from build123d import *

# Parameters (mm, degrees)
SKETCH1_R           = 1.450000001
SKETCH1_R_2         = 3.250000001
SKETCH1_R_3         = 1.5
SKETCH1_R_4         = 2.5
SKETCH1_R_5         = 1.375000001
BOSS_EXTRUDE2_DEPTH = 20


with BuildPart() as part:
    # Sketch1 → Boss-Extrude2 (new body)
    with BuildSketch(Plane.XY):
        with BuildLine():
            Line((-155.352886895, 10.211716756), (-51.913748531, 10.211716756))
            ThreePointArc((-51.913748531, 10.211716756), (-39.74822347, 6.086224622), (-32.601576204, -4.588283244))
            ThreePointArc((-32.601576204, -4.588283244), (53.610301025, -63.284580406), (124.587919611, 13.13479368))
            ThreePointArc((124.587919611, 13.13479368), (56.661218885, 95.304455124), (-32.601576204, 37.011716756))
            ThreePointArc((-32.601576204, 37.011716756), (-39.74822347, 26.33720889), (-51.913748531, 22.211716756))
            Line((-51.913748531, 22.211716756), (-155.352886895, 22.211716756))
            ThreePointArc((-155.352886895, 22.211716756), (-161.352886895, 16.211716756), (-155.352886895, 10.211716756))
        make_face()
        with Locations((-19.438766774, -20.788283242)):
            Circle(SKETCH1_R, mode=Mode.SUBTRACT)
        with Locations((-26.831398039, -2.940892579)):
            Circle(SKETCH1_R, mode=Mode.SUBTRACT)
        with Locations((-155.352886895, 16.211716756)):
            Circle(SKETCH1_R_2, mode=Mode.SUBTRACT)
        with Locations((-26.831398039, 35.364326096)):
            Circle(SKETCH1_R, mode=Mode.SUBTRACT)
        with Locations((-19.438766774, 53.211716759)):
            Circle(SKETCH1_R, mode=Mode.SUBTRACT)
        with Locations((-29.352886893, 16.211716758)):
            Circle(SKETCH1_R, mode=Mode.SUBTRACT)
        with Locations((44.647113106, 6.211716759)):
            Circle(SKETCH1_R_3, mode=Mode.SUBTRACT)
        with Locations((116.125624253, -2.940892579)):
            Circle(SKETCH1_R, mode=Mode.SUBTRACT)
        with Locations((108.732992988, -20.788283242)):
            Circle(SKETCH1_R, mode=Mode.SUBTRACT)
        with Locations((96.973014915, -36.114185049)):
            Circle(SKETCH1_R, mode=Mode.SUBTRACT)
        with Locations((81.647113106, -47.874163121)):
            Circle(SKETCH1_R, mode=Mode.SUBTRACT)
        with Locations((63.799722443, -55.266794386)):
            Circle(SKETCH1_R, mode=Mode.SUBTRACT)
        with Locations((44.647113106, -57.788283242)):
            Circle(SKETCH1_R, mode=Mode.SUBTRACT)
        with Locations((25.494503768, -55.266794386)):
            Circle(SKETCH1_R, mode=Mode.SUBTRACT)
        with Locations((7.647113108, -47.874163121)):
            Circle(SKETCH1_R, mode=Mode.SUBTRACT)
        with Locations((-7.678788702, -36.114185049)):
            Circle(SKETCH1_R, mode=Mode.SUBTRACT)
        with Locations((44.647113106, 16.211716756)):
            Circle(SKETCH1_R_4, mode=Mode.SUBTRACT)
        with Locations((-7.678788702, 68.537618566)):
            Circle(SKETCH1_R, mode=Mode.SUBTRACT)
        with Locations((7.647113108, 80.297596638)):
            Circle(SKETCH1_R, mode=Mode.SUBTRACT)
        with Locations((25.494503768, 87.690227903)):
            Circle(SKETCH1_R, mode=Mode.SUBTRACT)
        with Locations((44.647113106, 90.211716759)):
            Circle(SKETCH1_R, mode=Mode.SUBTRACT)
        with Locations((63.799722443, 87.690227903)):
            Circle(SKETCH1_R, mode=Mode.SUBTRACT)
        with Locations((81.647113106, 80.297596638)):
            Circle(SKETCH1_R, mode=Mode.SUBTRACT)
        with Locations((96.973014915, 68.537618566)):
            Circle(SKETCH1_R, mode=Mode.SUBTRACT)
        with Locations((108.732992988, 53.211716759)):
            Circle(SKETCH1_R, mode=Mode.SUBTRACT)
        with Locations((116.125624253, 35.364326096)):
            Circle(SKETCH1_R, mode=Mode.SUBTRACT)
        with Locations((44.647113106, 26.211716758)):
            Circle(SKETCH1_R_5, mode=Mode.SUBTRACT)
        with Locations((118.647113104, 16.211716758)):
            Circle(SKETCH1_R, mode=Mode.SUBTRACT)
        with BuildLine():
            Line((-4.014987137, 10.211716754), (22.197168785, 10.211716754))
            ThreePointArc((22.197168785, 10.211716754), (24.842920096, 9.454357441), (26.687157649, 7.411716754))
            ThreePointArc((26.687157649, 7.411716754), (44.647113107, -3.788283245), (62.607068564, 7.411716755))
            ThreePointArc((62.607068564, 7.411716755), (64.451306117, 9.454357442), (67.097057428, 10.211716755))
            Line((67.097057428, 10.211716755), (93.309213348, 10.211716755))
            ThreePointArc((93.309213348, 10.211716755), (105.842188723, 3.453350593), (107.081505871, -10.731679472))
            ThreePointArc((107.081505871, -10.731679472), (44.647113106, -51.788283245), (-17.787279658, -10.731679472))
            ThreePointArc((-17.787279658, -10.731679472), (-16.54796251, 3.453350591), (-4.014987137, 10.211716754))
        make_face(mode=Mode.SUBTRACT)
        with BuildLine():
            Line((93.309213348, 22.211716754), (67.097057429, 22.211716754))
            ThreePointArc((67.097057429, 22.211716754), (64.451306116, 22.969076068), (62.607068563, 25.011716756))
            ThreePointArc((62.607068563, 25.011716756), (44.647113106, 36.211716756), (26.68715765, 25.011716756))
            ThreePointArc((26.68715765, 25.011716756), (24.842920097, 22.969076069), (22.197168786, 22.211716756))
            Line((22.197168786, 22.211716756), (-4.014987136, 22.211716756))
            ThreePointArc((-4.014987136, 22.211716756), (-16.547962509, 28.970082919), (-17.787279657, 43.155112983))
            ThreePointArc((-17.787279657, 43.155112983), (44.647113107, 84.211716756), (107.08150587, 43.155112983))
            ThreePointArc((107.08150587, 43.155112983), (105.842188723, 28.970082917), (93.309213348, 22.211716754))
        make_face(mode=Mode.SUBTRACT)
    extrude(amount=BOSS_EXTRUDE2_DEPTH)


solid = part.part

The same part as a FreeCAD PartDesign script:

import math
import FreeCAD as App
import Part
import Sketcher

doc = App.newDocument("Part")
body = doc.addObject("PartDesign::Body", "Body")

# Sketch on XY plane
sketch1 = body.newObject("Sketcher::SketchObject", "Sketch")
sketch1.AttachmentSupport = (doc.getObject("XY_Plane"), [""])
sketch1.MapMode = "FlatFace"
sketch1.addGeometry([
    Part.LineSegment(App.Vector(-155.352887, 10.211717, 0), App.Vector(-51.913749, 10.211717, 0)),  # 0
    Part.ArcOfCircle(Part.Circle(App.Vector(-51.913749, -9.788283, 0), App.Vector(0, 0, 1), 20), math.radians(15.070062), math.radians(90)),  # 1
    Part.ArcOfCircle(Part.Circle(App.Vector(44.647113, 16.211717, 0), App.Vector(0, 0, 1), 80), math.radians(-164.929938), math.radians(-2.204228)),  # 2
    Part.ArcOfCircle(Part.Circle(App.Vector(44.647113, 16.211717, 0), App.Vector(0, 0, 1), 80), math.radians(-2.204228), math.radians(164.929938)),  # 3
    Part.ArcOfCircle(Part.Circle(App.Vector(-51.913749, 42.211717, 0), App.Vector(0, 0, 1), 20), math.radians(-90), math.radians(-15.070062)),  # 4
    Part.LineSegment(App.Vector(-51.913749, 22.211717, 0), App.Vector(-155.352887, 22.211717, 0)),  # 5
    Part.ArcOfCircle(Part.Circle(App.Vector(-155.352887, 16.211717, 0), App.Vector(0, 0, 1), 6), math.radians(90), math.radians(270)),  # 6
    Part.Circle(App.Vector(-155.352887, 16.211717, 0), App.Vector(0, 0, 1), 3.25),  # 7
    Part.Circle(App.Vector(-19.438767, -20.788283, 0), App.Vector(0, 0, 1), 1.45),  # 8
    Part.Circle(App.Vector(-26.831398, -2.940893, 0), App.Vector(0, 0, 1), 1.45),  # 9
    Part.Circle(App.Vector(-29.352887, 16.211717, 0), App.Vector(0, 0, 1), 1.45),  # 10
    Part.Circle(App.Vector(7.647113, -47.874163, 0), App.Vector(0, 0, 1), 1.45),  # 11
    Part.Circle(App.Vector(25.494504, -55.266794, 0), App.Vector(0, 0, 1), 1.45),  # 12
    Part.Circle(App.Vector(44.647113, -57.788283, 0), App.Vector(0, 0, 1), 1.45),  # 13
    Part.Circle(App.Vector(-7.678789, -36.114185, 0), App.Vector(0, 0, 1), 1.45),  # 14
    Part.Circle(App.Vector(63.799722, -55.266794, 0), App.Vector(0, 0, 1), 1.45),  # 15
    Part.Circle(App.Vector(81.647113, -47.874163, 0), App.Vector(0, 0, 1), 1.45),  # 16
    Part.Circle(App.Vector(96.973015, -36.114185, 0), App.Vector(0, 0, 1), 1.45),  # 17
    Part.ArcOfCircle(Part.Circle(App.Vector(-4.014987, -4.788283, 0), App.Vector(0, 0, 1), 15), math.radians(90), math.radians(203.342484)),  # 18
    Part.LineSegment(App.Vector(-4.014987, 10.211717, 0), App.Vector(22.197169, 10.211717, 0)),  # 19
    Part.ArcOfCircle(Part.Circle(App.Vector(22.197169, 5.211717, 0), App.Vector(0, 0, 1), 5), math.radians(26.103881), math.radians(90)),  # 20
    Part.ArcOfCircle(Part.Circle(App.Vector(44.647113, 16.211717, 0), App.Vector(0, 0, 1), 20), math.radians(-153.896119), math.radians(-26.103881)),  # 21
    Part.ArcOfCircle(Part.Circle(App.Vector(67.097057, 5.211717, 0), App.Vector(0, 0, 1), 5), math.radians(90), math.radians(153.896119)),  # 22
    Part.LineSegment(App.Vector(67.097057, 10.211717, 0), App.Vector(93.309213, 10.211717, 0)),  # 23
    Part.ArcOfCircle(Part.Circle(App.Vector(93.309213, -4.788283, 0), App.Vector(0, 0, 1), 15), math.radians(-23.342484), math.radians(90)),  # 24
    Part.ArcOfCircle(Part.Circle(App.Vector(44.647113, 16.211717, 0), App.Vector(0, 0, 1), 68), math.radians(-156.657516), math.radians(-23.342484)),  # 25
    Part.Circle(App.Vector(44.647113, 6.211717, 0), App.Vector(0, 0, 1), 1.5),  # 26
    Part.Circle(App.Vector(44.647113, 16.211717, 0), App.Vector(0, 0, 1), 2.5),  # 27
    Part.Circle(App.Vector(108.732993, -20.788283, 0), App.Vector(0, 0, 1), 1.45),  # 28
    Part.Circle(App.Vector(116.125624, -2.940893, 0), App.Vector(0, 0, 1), 1.45),  # 29
    Part.Circle(App.Vector(118.647113, 16.211717, 0), App.Vector(0, 0, 1), 1.45),  # 30
    Part.Circle(App.Vector(-26.831398, 35.364326, 0), App.Vector(0, 0, 1), 1.45),  # 31
    Part.Circle(App.Vector(-19.438767, 53.211717, 0), App.Vector(0, 0, 1), 1.45),  # 32
    Part.Circle(App.Vector(44.647113, 26.211717, 0), App.Vector(0, 0, 1), 1.375),  # 33
    Part.ArcOfCircle(Part.Circle(App.Vector(93.309213, 37.211717, 0), App.Vector(0, 0, 1), 15), math.radians(-90), math.radians(23.342484)),  # 34
    Part.LineSegment(App.Vector(93.309213, 22.211717, 0), App.Vector(67.097057, 22.211717, 0)),  # 35
    Part.ArcOfCircle(Part.Circle(App.Vector(67.097057, 27.211717, 0), App.Vector(0, 0, 1), 5), math.radians(-153.896119), math.radians(-90)),  # 36
    Part.ArcOfCircle(Part.Circle(App.Vector(44.647113, 16.211717, 0), App.Vector(0, 0, 1), 20), math.radians(26.103881), math.radians(153.896119)),  # 37
    Part.ArcOfCircle(Part.Circle(App.Vector(22.197169, 27.211717, 0), App.Vector(0, 0, 1), 5), math.radians(-90), math.radians(-26.103881)),  # 38
    Part.LineSegment(App.Vector(22.197169, 22.211717, 0), App.Vector(-4.014987, 22.211717, 0)),  # 39
    Part.ArcOfCircle(Part.Circle(App.Vector(-4.014987, 37.211717, 0), App.Vector(0, 0, 1), 15), math.radians(156.657516), math.radians(270)),  # 40
    Part.ArcOfCircle(Part.Circle(App.Vector(44.647113, 16.211717, 0), App.Vector(0, 0, 1), 68), math.radians(23.342484), math.radians(156.657516)),  # 41
    Part.Circle(App.Vector(116.125624, 35.364326, 0), App.Vector(0, 0, 1), 1.45),  # 42
    Part.Circle(App.Vector(108.732993, 53.211717, 0), App.Vector(0, 0, 1), 1.45),  # 43
    Part.Circle(App.Vector(-7.678789, 68.537619, 0), App.Vector(0, 0, 1), 1.45),  # 44
    Part.Circle(App.Vector(7.647113, 80.297597, 0), App.Vector(0, 0, 1), 1.45),  # 45
    Part.Circle(App.Vector(25.494504, 87.690228, 0), App.Vector(0, 0, 1), 1.45),  # 46
    Part.Circle(App.Vector(44.647113, 90.211717, 0), App.Vector(0, 0, 1), 1.45),  # 47
    Part.Circle(App.Vector(96.973015, 68.537619, 0), App.Vector(0, 0, 1), 1.45),  # 48
    Part.Circle(App.Vector(81.647113, 80.297597, 0), App.Vector(0, 0, 1), 1.45),  # 49
    Part.Circle(App.Vector(63.799722, 87.690228, 0), App.Vector(0, 0, 1), 1.45),  # 50
], False)
sketch1.addConstraint([
    Sketcher.Constraint("Tangent", 0, 2, 1, 2),
    Sketcher.Constraint("Tangent", 1, 1, 2, 1),
    Sketcher.Constraint("Tangent", 2, 2, 3, 1),
    Sketcher.Constraint("Tangent", 3, 2, 4, 2),
    Sketcher.Constraint("Tangent", 4, 1, 5, 1),
    Sketcher.Constraint("Tangent", 5, 2, 6, 1),
    Sketcher.Constraint("Tangent", 6, 2, 0, 1),
    Sketcher.Constraint("Tangent", 18, 1, 19, 1),
    Sketcher.Constraint("Tangent", 19, 2, 20, 2),
    Sketcher.Constraint("Tangent", 20, 1, 21, 1),
    Sketcher.Constraint("Tangent", 21, 2, 22, 2),
    Sketcher.Constraint("Tangent", 22, 1, 23, 1),
    Sketcher.Constraint("Tangent", 23, 2, 24, 2),
    Sketcher.Constraint("Tangent", 24, 1, 25, 2),
    Sketcher.Constraint("Tangent", 25, 1, 18, 2),
    Sketcher.Constraint("Tangent", 34, 1, 35, 1),
    Sketcher.Constraint("Tangent", 35, 2, 36, 2),
    Sketcher.Constraint("Tangent", 36, 1, 37, 1),
    Sketcher.Constraint("Tangent", 37, 2, 38, 2),
    Sketcher.Constraint("Tangent", 38, 1, 39, 1),
    Sketcher.Constraint("Tangent", 39, 2, 40, 2),
    Sketcher.Constraint("Tangent", 40, 1, 41, 2),
    Sketcher.Constraint("Tangent", 41, 1, 34, 2),
    Sketcher.Constraint("Horizontal", 0),
    Sketcher.Constraint("Horizontal", 5),
    Sketcher.Constraint("Horizontal", 19),
    Sketcher.Constraint("Horizontal", 23),
    Sketcher.Constraint("Horizontal", 35),
    Sketcher.Constraint("Horizontal", 39),
    Sketcher.Constraint("Coincident", 7, 3, 6, 3),
    Sketcher.Constraint("Coincident", 21, 3, 2, 3),
    Sketcher.Constraint("Coincident", 25, 3, 2, 3),
    Sketcher.Constraint("Coincident", 27, 3, 2, 3),
    Sketcher.Constraint("Coincident", 37, 3, 2, 3),
    Sketcher.Constraint("Coincident", 41, 3, 2, 3),
    Sketcher.Constraint("Equal", 2, 3),
    Sketcher.Constraint("Equal", 1, 4),
    Sketcher.Constraint("Equal", 8, 9),
    Sketcher.Constraint("Equal", 9, 10),
    Sketcher.Constraint("Equal", 10, 11),
    Sketcher.Constraint("Equal", 11, 12),
    Sketcher.Constraint("Equal", 12, 13),
    Sketcher.Constraint("Equal", 13, 14),
    Sketcher.Constraint("Equal", 14, 15),
    Sketcher.Constraint("Equal", 15, 16),
    Sketcher.Constraint("Equal", 16, 17),
    Sketcher.Constraint("Equal", 4, 21),
    Sketcher.Constraint("Equal", 20, 22),
    Sketcher.Constraint("Equal", 18, 24),
    Sketcher.Constraint("Equal", 17, 28),
    Sketcher.Constraint("Equal", 28, 29),
    Sketcher.Constraint("Equal", 29, 30),
    Sketcher.Constraint("Equal", 30, 31),
    Sketcher.Constraint("Equal", 31, 32),
    Sketcher.Constraint("Equal", 24, 34),
    Sketcher.Constraint("Equal", 22, 36),
    Sketcher.Constraint("Equal", 21, 37),
    Sketcher.Constraint("Equal", 36, 38),
    Sketcher.Constraint("Equal", 34, 40),
    Sketcher.Constraint("Equal", 25, 41),
    Sketcher.Constraint("Equal", 32, 42),
    Sketcher.Constraint("Equal", 42, 43),
    Sketcher.Constraint("Equal", 43, 44),
    Sketcher.Constraint("Equal", 44, 45),
    Sketcher.Constraint("Equal", 45, 46),
    Sketcher.Constraint("Equal", 46, 47),
    Sketcher.Constraint("Equal", 47, 48),
    Sketcher.Constraint("Equal", 48, 49),
    Sketcher.Constraint("Equal", 49, 50),
    Sketcher.Constraint("Horizontal", 3, 3, 6, 3),
    Sketcher.Constraint("Horizontal", 7, 3, 10, 3),
    Sketcher.Constraint("Horizontal", 12, 3, 15, 3),
    Sketcher.Constraint("Horizontal", 11, 3, 16, 3),
    Sketcher.Constraint("Horizontal", 14, 3, 17, 3),
    Sketcher.Constraint("Horizontal", 20, 3, 22, 3),
    Sketcher.Constraint("Horizontal", 8, 3, 28, 3),
    Sketcher.Constraint("Horizontal", 9, 3, 29, 3),
    Sketcher.Constraint("Horizontal", 27, 3, 30, 3),
    Sketcher.Constraint("Horizontal", 36, 3, 38, 3),
    Sketcher.Constraint("Horizontal", 31, 3, 42, 3),
    Sketcher.Constraint("Horizontal", 32, 3, 43, 3),
    Sketcher.Constraint("Horizontal", 44, 3, 48, 3),
    Sketcher.Constraint("Horizontal", 45, 3, 49, 3),
    Sketcher.Constraint("Horizontal", 46, 3, 50, 3),
    Sketcher.Constraint("Horizontal", 6, 2, 18, 1),
    Sketcher.Constraint("Horizontal", 5, 2, 34, 1),
    Sketcher.Constraint("Vertical", 3, 3, 13, 3),
    Sketcher.Constraint("Vertical", 25, 3, 26, 3),
    Sketcher.Constraint("Vertical", 9, 3, 31, 3),
    Sketcher.Constraint("Vertical", 8, 3, 32, 3),
    Sketcher.Constraint("Vertical", 27, 3, 33, 3),
    Sketcher.Constraint("Vertical", 29, 3, 42, 3),
    Sketcher.Constraint("Vertical", 28, 3, 43, 3),
    Sketcher.Constraint("Vertical", 14, 3, 44, 3),
    Sketcher.Constraint("Vertical", 11, 3, 45, 3),
    Sketcher.Constraint("Vertical", 12, 3, 46, 3),
    Sketcher.Constraint("Vertical", 41, 3, 47, 3),
    Sketcher.Constraint("Vertical", 17, 3, 48, 3),
    Sketcher.Constraint("Vertical", 16, 3, 49, 3),
    Sketcher.Constraint("Vertical", 15, 3, 50, 3),
    Sketcher.Constraint("Diameter", 26, 3.0),
    Sketcher.Constraint("Diameter", 27, 5.0),
    Sketcher.Constraint("Radius", 1, 20.0),
    Sketcher.Constraint("Radius", 2, 80.0),
    Sketcher.Constraint("Radius", 6, 6.0),
    Sketcher.Constraint("Radius", 18, 15.0),
    Sketcher.Constraint("Radius", 20, 5.0),
    Sketcher.Constraint("Radius", 25, 68.0),
    Sketcher.Constraint("Diameter", 7, 6.5),
    Sketcher.Constraint("Diameter", 8, 2.9),
    Sketcher.Constraint("Diameter", 33, 2.75),
    Sketcher.Constraint("DistanceX", 0, 1, 0, 2, 103.439138),
    Sketcher.Constraint("DistanceX", 9, 3, -1, 1, 26.831398),
    Sketcher.Constraint("DistanceX", 1, 3, -1, 1, 51.913749),
    Sketcher.Constraint("DistanceX", 14, 3, -1, 1, 7.678789),
    Sketcher.Constraint("DistanceY", -1, 1, 44, 3, 68.537619),
    Sketcher.Constraint("DistanceX", -1, 1, 2, 2, 124.58792),
    Sketcher.Constraint("DistanceY", 24, 1, -1, 1, 10.731679),
    Sketcher.Constraint("DistanceX", 8, 3, -1, 1, 19.438767),
    Sketcher.Constraint("DistanceY", 8, 3, -1, 1, 20.788283),
    Sketcher.Constraint("DistanceY", 9, 3, -1, 1, 2.940893),
    Sketcher.Constraint("DistanceX", 10, 3, -1, 1, 29.352887),
    Sketcher.Constraint("DistanceX", -1, 1, 11, 3, 7.647113),
    Sketcher.Constraint("DistanceY", 11, 3, -1, 1, 47.874163),
    Sketcher.Constraint("DistanceX", -1, 1, 12, 3, 25.494504),
    Sketcher.Constraint("DistanceY", 12, 3, -1, 1, 55.266794),
    Sketcher.Constraint("DistanceY", 13, 3, -1, 1, 57.788283),
    Sketcher.Constraint("DistanceY", 14, 3, -1, 1, 36.114185),
    Sketcher.Constraint("DistanceX", -1, 1, 15, 3, 63.799722),
    Sketcher.Constraint("DistanceX", -1, 1, 16, 3, 81.647113),
    Sketcher.Constraint("DistanceX", -1, 1, 17, 3, 96.973015),
    Sketcher.Constraint("DistanceY", -1, 1, 26, 3, 6.211717),
    Sketcher.Constraint("DistanceX", -1, 1, 28, 3, 108.732993),
    Sketcher.Constraint("DistanceX", -1, 1, 29, 3, 116.125624),
    Sketcher.Constraint("DistanceX", -1, 1, 30, 3, 118.647113),
    Sketcher.Constraint("DistanceY", -1, 1, 31, 3, 35.364326),
    Sketcher.Constraint("DistanceY", -1, 1, 32, 3, 53.211717),
    Sketcher.Constraint("DistanceY", -1, 1, 33, 3, 26.211717),
    Sketcher.Constraint("DistanceY", -1, 1, 45, 3, 80.297597),
    Sketcher.Constraint("DistanceY", -1, 1, 46, 3, 87.690228),
    Sketcher.Constraint("DistanceY", -1, 1, 47, 3, 90.211717),
])
pad1 = body.newObject("PartDesign::Pad", "Pad")
pad1.Profile = sketch1
pad1.Length = 20

doc.recompute()
